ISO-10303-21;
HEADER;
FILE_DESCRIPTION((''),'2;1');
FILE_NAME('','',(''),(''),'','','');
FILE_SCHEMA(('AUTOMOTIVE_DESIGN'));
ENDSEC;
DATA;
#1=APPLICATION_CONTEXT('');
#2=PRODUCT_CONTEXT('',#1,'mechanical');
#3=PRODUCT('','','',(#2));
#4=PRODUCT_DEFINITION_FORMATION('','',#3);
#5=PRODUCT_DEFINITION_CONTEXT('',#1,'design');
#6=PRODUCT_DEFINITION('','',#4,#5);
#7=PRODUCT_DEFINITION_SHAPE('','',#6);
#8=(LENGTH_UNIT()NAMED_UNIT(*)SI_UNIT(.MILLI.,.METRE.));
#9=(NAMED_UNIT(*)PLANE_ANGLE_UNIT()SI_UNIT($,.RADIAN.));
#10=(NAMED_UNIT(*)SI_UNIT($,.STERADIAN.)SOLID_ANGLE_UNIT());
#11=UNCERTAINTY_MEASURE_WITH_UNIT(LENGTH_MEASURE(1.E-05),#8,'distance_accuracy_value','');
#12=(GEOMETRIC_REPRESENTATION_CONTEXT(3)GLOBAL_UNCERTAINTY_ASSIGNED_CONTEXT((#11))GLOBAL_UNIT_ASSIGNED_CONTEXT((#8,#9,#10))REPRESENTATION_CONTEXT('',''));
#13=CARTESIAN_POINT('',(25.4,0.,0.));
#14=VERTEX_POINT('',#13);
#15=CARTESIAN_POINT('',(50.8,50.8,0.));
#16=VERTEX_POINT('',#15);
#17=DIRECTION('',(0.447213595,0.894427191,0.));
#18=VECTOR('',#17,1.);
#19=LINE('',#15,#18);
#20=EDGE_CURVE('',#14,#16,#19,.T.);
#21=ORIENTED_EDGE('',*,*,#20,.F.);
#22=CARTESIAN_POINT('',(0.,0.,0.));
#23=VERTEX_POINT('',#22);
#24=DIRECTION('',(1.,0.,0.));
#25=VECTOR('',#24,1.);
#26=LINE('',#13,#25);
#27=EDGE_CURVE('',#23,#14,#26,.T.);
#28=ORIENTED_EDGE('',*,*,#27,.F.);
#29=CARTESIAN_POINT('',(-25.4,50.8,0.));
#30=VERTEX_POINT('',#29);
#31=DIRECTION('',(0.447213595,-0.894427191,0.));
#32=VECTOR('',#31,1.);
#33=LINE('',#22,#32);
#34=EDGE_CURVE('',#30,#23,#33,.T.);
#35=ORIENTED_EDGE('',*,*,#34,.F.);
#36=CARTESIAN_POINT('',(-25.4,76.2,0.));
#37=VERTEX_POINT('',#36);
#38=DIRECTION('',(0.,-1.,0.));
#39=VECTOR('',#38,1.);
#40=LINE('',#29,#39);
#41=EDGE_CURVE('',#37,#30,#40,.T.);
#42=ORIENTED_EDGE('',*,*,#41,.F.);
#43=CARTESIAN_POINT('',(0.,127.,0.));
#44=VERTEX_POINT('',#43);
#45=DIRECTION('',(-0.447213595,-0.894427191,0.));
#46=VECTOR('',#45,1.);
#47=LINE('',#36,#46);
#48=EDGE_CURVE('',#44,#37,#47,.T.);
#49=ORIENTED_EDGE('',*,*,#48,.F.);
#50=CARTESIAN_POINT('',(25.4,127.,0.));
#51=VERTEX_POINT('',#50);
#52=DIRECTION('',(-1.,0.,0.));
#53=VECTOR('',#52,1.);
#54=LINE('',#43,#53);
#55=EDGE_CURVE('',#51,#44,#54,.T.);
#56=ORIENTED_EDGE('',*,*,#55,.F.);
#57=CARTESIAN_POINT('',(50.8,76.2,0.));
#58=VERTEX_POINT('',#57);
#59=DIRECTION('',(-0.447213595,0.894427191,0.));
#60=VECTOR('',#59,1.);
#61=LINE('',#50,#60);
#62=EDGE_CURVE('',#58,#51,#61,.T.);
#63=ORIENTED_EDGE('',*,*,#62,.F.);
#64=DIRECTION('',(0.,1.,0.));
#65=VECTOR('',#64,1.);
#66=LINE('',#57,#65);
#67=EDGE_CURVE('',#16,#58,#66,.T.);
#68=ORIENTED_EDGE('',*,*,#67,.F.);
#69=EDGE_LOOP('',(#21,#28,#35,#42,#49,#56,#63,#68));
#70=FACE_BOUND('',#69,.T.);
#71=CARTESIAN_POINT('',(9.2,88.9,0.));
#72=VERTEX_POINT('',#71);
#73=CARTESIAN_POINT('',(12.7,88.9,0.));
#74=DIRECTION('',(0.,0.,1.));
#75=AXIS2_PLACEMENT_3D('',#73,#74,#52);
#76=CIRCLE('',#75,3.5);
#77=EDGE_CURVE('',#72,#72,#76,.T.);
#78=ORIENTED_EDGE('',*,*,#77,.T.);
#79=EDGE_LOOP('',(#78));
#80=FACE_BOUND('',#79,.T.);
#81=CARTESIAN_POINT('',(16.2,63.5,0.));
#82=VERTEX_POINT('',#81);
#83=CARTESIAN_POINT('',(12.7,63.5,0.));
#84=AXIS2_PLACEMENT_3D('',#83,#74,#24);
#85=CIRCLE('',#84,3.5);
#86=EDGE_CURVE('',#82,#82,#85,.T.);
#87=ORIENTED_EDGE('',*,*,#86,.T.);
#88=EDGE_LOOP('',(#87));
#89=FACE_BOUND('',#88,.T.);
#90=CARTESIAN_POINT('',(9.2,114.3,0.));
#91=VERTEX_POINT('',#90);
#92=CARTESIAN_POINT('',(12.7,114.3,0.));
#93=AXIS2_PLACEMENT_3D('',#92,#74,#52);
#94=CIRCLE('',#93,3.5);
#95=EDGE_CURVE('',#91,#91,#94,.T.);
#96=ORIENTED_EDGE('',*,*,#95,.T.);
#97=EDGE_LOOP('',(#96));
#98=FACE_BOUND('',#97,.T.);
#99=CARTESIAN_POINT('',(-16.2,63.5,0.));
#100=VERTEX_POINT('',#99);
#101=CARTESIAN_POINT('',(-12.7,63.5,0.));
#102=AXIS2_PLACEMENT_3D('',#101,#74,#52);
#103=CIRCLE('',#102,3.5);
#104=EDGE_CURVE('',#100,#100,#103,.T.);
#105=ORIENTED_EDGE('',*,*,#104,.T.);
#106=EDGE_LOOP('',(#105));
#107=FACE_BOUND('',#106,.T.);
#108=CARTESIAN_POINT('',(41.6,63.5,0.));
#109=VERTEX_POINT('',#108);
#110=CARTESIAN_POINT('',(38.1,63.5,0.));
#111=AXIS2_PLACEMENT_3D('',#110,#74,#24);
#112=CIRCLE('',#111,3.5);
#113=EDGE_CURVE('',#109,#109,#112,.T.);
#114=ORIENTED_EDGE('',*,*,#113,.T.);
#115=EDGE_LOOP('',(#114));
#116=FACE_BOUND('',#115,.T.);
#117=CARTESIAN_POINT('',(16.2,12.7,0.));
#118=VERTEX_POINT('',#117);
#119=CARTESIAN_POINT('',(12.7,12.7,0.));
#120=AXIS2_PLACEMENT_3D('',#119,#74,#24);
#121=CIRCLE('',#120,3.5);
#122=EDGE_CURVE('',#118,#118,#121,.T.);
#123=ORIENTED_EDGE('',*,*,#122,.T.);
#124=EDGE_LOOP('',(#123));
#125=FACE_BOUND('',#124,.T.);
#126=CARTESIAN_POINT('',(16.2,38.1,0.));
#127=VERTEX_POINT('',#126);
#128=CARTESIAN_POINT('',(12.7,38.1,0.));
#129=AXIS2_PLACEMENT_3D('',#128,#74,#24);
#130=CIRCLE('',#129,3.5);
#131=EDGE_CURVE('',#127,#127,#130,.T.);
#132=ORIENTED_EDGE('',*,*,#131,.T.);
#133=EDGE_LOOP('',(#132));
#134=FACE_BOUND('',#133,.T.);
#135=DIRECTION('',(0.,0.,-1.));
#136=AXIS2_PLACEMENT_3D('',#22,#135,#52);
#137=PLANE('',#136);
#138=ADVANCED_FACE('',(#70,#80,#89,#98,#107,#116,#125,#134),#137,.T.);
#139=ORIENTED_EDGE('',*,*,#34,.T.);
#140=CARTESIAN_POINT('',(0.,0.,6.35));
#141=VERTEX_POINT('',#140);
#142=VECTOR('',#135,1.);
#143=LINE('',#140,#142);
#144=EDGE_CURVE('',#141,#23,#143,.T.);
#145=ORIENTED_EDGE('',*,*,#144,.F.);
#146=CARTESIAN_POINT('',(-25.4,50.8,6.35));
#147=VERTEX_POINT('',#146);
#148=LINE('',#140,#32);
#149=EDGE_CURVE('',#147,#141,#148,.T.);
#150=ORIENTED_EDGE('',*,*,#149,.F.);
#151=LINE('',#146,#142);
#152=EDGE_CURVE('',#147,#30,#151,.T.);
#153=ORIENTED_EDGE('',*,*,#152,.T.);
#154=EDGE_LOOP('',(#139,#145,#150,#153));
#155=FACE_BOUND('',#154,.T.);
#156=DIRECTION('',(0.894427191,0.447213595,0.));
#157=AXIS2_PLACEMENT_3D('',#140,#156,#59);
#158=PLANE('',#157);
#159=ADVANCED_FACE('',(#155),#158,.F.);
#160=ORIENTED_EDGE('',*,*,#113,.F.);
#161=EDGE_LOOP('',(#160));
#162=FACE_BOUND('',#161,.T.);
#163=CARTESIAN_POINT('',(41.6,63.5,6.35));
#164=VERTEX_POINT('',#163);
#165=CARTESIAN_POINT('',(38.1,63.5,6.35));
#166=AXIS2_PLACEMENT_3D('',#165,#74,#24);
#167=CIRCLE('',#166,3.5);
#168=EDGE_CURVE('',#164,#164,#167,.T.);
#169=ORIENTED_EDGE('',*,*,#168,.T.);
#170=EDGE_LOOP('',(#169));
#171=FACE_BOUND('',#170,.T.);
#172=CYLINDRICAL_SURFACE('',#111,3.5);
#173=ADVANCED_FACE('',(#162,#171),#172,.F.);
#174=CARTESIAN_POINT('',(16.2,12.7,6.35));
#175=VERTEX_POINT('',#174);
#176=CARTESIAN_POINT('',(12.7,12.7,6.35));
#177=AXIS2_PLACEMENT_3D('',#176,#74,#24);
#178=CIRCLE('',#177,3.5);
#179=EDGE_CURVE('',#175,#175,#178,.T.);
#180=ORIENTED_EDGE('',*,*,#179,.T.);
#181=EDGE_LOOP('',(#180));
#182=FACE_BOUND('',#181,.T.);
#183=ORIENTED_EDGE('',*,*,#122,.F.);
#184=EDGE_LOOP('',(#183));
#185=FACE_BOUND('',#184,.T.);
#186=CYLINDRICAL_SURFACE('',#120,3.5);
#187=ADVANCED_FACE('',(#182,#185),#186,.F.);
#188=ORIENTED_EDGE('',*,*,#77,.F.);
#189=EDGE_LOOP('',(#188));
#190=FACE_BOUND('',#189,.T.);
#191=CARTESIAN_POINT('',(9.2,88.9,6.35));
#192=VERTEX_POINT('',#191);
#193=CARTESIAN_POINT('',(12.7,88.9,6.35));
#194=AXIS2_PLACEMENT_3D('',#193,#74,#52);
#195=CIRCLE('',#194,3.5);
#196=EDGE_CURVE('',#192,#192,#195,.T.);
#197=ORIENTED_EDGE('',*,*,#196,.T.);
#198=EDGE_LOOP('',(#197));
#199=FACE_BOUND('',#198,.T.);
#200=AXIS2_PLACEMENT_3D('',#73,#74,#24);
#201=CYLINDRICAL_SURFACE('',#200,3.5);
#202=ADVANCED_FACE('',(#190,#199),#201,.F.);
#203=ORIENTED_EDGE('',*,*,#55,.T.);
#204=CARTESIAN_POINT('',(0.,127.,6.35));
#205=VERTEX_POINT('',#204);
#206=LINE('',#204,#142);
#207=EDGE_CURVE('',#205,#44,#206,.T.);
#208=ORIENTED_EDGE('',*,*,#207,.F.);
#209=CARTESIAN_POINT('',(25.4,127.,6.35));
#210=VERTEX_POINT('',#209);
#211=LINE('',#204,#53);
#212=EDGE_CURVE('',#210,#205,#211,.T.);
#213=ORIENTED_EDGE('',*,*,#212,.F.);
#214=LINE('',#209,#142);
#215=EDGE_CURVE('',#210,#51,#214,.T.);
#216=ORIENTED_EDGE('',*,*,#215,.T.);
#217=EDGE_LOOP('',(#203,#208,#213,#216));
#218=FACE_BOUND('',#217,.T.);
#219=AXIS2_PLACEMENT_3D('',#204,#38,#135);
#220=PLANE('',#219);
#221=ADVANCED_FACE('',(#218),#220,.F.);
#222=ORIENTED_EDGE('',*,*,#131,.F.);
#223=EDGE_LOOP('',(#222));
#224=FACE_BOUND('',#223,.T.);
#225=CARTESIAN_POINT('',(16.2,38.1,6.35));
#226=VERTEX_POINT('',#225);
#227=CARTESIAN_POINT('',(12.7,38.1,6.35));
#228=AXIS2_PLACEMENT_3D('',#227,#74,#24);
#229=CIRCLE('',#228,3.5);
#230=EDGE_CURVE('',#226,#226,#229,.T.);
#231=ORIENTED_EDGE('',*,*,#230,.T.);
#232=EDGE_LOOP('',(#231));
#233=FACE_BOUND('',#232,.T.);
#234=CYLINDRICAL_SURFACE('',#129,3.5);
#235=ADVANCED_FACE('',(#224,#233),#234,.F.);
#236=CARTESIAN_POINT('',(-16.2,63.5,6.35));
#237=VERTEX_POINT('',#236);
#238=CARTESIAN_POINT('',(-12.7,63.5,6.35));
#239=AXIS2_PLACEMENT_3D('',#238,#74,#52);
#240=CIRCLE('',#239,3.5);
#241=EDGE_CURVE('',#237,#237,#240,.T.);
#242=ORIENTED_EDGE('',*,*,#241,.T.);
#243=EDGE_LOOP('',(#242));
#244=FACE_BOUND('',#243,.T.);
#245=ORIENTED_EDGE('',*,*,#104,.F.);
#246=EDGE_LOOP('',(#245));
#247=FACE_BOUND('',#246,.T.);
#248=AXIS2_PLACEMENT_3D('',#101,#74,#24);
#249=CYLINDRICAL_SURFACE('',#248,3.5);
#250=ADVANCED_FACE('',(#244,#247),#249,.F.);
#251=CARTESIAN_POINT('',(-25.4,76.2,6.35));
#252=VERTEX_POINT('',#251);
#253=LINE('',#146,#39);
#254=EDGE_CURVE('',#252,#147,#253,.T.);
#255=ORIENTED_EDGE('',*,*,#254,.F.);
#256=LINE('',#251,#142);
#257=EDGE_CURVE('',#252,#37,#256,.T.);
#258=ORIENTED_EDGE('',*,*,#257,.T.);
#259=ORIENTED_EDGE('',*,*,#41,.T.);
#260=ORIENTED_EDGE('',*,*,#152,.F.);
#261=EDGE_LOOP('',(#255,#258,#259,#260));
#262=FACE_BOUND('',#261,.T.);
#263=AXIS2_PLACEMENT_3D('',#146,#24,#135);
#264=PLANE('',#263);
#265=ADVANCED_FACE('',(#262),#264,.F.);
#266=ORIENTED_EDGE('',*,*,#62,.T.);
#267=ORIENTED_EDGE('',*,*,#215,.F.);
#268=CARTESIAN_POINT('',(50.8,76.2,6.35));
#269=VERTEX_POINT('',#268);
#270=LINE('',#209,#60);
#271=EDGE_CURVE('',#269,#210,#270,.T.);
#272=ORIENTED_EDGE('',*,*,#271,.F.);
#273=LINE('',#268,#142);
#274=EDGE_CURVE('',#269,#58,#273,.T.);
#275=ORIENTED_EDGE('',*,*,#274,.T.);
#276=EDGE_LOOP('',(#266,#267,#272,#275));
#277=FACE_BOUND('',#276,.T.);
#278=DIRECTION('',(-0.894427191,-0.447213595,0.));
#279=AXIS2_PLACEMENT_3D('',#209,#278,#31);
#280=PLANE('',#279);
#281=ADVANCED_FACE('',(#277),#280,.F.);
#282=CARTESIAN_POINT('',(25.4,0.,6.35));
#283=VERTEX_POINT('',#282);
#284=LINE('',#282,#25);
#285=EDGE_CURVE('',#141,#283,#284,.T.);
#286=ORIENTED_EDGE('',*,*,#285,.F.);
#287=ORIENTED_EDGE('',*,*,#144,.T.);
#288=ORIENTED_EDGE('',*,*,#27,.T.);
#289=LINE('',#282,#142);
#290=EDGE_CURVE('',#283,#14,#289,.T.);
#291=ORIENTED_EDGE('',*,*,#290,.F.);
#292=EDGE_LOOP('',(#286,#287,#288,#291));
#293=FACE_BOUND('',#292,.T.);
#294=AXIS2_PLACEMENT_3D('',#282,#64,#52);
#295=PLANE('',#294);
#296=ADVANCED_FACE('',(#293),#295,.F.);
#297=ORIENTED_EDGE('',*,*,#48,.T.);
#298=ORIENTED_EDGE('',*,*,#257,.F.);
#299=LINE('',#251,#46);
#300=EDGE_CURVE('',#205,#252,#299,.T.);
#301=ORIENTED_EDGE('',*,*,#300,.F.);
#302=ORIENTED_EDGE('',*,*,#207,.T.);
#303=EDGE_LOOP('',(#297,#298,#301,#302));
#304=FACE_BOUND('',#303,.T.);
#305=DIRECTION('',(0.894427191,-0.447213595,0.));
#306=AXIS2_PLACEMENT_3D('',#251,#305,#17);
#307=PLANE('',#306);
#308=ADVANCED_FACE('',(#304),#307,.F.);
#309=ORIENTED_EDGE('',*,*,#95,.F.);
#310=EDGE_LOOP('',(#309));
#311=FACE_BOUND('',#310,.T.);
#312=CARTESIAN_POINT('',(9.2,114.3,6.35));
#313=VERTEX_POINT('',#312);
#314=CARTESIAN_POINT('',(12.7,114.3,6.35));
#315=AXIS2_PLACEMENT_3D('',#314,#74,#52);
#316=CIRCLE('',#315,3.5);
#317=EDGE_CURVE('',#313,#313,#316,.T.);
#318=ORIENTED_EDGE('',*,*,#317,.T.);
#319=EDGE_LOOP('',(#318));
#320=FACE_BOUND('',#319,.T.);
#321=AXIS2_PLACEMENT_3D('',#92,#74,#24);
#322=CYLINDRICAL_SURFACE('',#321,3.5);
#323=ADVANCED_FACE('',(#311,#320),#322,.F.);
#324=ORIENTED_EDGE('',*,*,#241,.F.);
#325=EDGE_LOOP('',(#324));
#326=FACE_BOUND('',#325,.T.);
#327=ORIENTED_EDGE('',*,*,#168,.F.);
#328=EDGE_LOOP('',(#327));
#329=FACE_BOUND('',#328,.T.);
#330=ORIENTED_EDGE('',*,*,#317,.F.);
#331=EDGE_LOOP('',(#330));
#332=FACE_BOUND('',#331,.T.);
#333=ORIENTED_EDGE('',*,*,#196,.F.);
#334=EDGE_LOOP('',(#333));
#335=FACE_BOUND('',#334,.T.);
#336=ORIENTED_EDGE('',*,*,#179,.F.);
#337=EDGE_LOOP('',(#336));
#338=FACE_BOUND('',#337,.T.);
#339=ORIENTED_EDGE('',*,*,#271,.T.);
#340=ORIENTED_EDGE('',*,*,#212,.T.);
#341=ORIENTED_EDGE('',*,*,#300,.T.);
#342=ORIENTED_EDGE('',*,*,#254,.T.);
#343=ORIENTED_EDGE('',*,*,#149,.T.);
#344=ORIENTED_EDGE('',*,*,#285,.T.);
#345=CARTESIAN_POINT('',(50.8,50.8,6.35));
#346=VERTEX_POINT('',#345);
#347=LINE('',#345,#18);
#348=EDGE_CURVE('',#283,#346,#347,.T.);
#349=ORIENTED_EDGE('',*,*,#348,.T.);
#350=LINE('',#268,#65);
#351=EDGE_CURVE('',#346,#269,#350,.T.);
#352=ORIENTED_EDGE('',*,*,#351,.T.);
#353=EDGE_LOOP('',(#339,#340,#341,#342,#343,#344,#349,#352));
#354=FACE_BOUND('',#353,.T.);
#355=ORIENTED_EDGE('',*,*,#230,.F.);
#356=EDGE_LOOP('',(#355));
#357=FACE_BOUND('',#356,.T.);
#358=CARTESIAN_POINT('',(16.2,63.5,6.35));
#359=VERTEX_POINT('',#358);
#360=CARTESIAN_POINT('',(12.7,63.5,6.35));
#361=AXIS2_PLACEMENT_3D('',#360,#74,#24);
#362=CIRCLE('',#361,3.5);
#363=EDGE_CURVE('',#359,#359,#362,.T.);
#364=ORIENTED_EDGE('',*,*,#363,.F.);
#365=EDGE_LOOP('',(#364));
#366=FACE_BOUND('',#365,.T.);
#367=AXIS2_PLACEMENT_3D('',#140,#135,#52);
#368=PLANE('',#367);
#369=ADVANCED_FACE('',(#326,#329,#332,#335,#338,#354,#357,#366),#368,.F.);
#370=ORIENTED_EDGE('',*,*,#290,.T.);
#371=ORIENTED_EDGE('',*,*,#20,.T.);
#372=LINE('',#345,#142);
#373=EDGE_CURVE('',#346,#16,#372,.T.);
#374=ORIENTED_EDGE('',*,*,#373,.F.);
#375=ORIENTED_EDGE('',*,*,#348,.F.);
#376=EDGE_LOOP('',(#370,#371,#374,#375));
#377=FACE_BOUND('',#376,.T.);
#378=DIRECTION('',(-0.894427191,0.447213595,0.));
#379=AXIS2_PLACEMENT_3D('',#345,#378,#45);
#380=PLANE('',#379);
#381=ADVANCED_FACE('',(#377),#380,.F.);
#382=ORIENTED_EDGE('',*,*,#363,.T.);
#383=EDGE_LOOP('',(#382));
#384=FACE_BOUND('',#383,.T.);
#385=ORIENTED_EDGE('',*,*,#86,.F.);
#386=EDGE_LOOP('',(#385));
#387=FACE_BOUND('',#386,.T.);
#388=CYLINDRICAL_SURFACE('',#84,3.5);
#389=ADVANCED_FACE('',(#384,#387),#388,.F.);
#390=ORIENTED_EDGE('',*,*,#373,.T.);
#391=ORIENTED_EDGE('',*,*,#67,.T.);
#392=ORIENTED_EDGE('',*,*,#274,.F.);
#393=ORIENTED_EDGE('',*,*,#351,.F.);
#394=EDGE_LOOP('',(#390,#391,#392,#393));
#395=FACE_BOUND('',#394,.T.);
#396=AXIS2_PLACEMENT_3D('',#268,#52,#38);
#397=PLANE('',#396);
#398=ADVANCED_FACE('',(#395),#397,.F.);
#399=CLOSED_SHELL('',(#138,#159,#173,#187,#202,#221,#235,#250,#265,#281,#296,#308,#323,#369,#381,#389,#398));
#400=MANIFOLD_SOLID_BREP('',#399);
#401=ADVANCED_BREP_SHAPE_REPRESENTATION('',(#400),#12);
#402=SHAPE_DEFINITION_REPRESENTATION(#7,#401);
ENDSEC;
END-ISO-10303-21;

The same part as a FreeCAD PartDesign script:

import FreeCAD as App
import Part
import Sketcher

V = App.Vector
Q = App.Units.Quantity


def add_polygon(sketch, points):
    """Adds a closed chain of lines whose ends are joined by coincident constraints."""
    first, n = sketch.GeometryCount, len(points)
    for a, b in zip(points, points[1:] + points[:1]):
        sketch.addGeometry(Part.LineSegment(App.Vector(*a, 0), App.Vector(*b, 0)), False)
    for i in range(n):
        sketch.addConstraint(Sketcher.Constraint("Coincident", first + i, 2, first + (i + 1) % n, 1))

doc = App.newDocument("Part")
body = doc.addObject("PartDesign::Body", "Body")

# Sketch on XY plane
sketch1 = doc.addObject("Sketcher::SketchObject", "Sketch")
body.addObject(sketch1)
sketch1.AttachmentSupport = (doc.XY_Plane, [""])
sketch1.MapMode = "FlatFace"
add_polygon(sketch1, [(-25, 76), (-25, 51), (0, 0), (25, 0), (51, 51), (51, 76), (25, 127), (0, 127)])  # lines 0-7
sketch1.addConstraint(Sketcher.Constraint("Vertical", 0))
sketch1.addConstraint(Sketcher.Constraint("Horizontal", 2))
sketch1.addConstraint(Sketcher.Constraint("Vertical", 4))
sketch1.addConstraint(Sketcher.Constraint("Horizontal", 6))
sketch1.addConstraint(Sketcher.Constraint("Coincident", 1, 2, -1, 1))
sketch1.addConstraint(Sketcher.Constraint("PointOnObject", 6, 2, -2))
sketch1.addConstraint(Sketcher.Constraint("Parallel", 1, 5))
sketch1.addConstraint(Sketcher.Constraint("Parallel", 3, 7))
sketch1.addConstraint(Sketcher.Constraint("Horizontal", 0, 2, 3, 2))
sketch1.addConstraint(Sketcher.Constraint("Horizontal", 4, 2, 7, 2))
sketch1.addConstraint(Sketcher.Constraint("Vertical", 2, 2, 5, 2))
sketch1.addConstraint(Sketcher.Constraint("Equal", 6, 0))
sketch1.addConstraint(Sketcher.Constraint("DistanceX", 2, 1, 2, 2, Q("1 in")))
sketch1.addConstraint(Sketcher.Constraint("DistanceX", 0, 2, -1, 1, Q("1 in")))
sketch1.addConstraint(Sketcher.Constraint("DistanceY", -1, 1, 0, 2, Q("2 in")))
pad1 = doc.addObject("PartDesign::Pad", "Pad")
body.addObject(pad1)
pad1.Profile = sketch1
pad1.Length = Q("0.25 in")

# Sketch on XY plane
sketch2 = doc.addObject("Sketcher::SketchObject", "Sketch001")
body.addObject(sketch2)
sketch2.AttachmentSupport = (doc.XY_Plane, [""])
sketch2.MapMode = "FlatFace"
sketch2.AttachmentOffset = App.Placement(V(0, 0, 0.25 * 25.4), App.Rotation())
sketch2.addGeometry(Part.Circle(V(12.7, 63.5, 0), V(0, 0, 1), 3.5), False)
sketch2.addGeometry(Part.Circle(V(38.1, 63.5, 0), V(0, 0, 1), 3.5), False)
sketch2.addGeometry(Part.Circle(V(-12.7, 63.5, 0), V(0, 0, 1), 3.5), False)
sketch2.addGeometry(Part.Circle(V(12.7, 38.1, 0), V(0, 0, 1), 3.5), False)
sketch2.addGeometry(Part.Circle(V(12.7, 12.7, 0), V(0, 0, 1), 3.5), False)
sketch2.addGeometry(Part.Circle(V(12.7, 114.3, 0), V(0, 0, 1), 3.5), False)
sketch2.addGeometry(Part.Circle(V(12.7, 88.9, 0), V(0, 0, 1), 3.5), False)
sketch2.addConstraint(Sketcher.Constraint("Equal", 0, 1))
sketch2.addConstraint(Sketcher.Constraint("Equal", 1, 2))
sketch2.addConstraint(Sketcher.Constraint("Equal", 2, 3))
sketch2.addConstraint(Sketcher.Constraint("Equal", 3, 4))
sketch2.addConstraint(Sketcher.Constraint("Equal", 4, 5))
sketch2.addConstraint(Sketcher.Constraint("Equal", 5, 6))
sketch2.addConstraint(Sketcher.Constraint("Symmetric", 0, 3, 2, 3, -2))
sketch2.addConstraint(Sketcher.Constraint("Horizontal", 0, 3, 1, 3))
sketch2.addConstraint(Sketcher.Constraint("Vertical", 0, 3, 3, 3))
sketch2.addConstraint(Sketcher.Constraint("Vertical", 3, 3, 4, 3))
sketch2.addConstraint(Sketcher.Constraint("Vertical", 4, 3, 5, 3))
sketch2.addConstraint(Sketcher.Constraint("Vertical", 5, 3, 6, 3))
sketch2.addConstraint(Sketcher.Constraint("DistanceX", 0, 3, 1, 3, Q("1 in")))
sketch2.addConstraint(Sketcher.Constraint("DistanceX", 2, 3, 0, 3, Q("1 in")))
sketch2.addConstraint(Sketcher.Constraint("DistanceY", 3, 3, 0, 3, Q("1 in")))
sketch2.addConstraint(Sketcher.Constraint("DistanceY", 4, 3, 3, 3, Q("1 in")))
sketch2.addConstraint(Sketcher.Constraint("DistanceY", 0, 3, 5, 3, Q("2 in")))
sketch2.addConstraint(Sketcher.Constraint("DistanceY", 6, 3, 5, 3, Q("1 in")))
sketch2.addConstraint(Sketcher.Constraint("DistanceY", -1, 1, 0, 3, Q("2.5 in")))
sketch2.addConstraint(Sketcher.Constraint("Diameter", 0, Q("7 mm")))
pocket1 = doc.addObject("PartDesign::Pocket", "Pocket")
body.addObject(pocket1)
pocket1.Profile = sketch2
pocket1.Type = "ThroughAll"

doc.recompute()
